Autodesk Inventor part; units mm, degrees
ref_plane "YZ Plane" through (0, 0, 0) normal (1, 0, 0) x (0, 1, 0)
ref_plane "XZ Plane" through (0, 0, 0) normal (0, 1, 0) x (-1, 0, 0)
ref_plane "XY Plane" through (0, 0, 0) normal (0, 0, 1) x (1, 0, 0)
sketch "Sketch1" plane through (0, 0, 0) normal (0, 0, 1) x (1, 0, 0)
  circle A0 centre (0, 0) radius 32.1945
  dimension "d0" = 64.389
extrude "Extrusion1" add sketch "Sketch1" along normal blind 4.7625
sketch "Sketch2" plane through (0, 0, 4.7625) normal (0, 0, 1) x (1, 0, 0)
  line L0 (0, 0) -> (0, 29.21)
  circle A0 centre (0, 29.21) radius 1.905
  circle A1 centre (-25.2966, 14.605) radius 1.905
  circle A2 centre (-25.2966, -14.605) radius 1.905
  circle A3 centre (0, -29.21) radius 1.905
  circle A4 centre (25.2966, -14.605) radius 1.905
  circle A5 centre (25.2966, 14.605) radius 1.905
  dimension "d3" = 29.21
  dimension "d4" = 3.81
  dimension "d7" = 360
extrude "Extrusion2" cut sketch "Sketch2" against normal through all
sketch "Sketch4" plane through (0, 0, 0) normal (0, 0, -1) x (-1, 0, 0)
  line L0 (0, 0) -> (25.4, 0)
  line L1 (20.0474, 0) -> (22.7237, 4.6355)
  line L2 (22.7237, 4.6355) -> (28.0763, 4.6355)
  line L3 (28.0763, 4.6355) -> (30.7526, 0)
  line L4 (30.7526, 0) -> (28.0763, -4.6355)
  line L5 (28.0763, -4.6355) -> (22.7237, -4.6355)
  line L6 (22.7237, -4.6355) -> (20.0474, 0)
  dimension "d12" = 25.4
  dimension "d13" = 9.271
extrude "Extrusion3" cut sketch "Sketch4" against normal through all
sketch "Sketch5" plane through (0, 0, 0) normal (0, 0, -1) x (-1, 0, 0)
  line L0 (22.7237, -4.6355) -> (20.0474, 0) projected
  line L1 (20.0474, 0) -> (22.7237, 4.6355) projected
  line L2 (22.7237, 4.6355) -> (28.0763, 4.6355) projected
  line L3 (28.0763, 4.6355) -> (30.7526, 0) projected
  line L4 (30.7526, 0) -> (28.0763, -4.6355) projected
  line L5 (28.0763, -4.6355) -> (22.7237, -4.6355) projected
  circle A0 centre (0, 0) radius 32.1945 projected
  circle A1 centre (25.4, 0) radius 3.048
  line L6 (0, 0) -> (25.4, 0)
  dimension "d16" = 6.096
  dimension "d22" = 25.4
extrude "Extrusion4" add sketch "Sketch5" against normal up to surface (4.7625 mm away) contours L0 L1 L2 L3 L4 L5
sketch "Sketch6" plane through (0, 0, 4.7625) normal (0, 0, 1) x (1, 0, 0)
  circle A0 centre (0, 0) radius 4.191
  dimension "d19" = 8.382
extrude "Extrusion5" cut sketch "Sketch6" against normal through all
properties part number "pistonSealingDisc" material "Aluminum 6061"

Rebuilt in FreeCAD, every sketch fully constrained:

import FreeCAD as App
import Part
import Sketcher
from FreeCAD import Vector
Q = App.Units.Quantity

doc = App.newDocument("Part")
body = doc.addObject("PartDesign::Body", "Body")

sketch1 = body.newObject("Sketcher::SketchObject", "Sketch")
sketch1.AttachmentSupport = (doc.getObject("XY_Plane"), [""])
sketch1.MapMode = "FlatFace"
sketch1.addGeometry(Part.Circle(Vector(0, 0, 0), Vector(0, 0, 1), 32), False)
sketch1.addConstraint([
    Sketcher.Constraint("Coincident", 0, 3, -1, 1),
    Sketcher.Constraint("Diameter", 0, Q("2.535 in")),
])
pad1 = body.newObject("PartDesign::Pad", "Pad")
pad1.Profile = sketch1
pad1.Length = Q("0.1875 in")

sketch2 = body.newObject("Sketcher::SketchObject", "Sketch001")
sketch2.AttachmentSupport = (doc.getObject("XY_Plane"), [""])
sketch2.MapMode = "FlatFace"
sketch2.AttachmentOffset = App.Placement(Vector(0, 0, 0.1875 * 25.4), App.Rotation())
sketch2.addGeometry([
    Part.Circle(Vector(0, 29.2, 0), Vector(0, 0, 1), 1.9),
    Part.Circle(Vector(-25.3, 14.6, 0), Vector(0, 0, 1), 1.9),
    Part.Circle(Vector(-25.3, -14.6, 0), Vector(0, 0, 1), 1.9),
    Part.Circle(Vector(0, -29.2, 0), Vector(0, 0, 1), 1.9),
    Part.Circle(Vector(25.3, -14.6, 0), Vector(0, 0, 1), 1.9),
    Part.Circle(Vector(25.3, 14.6, 0), Vector(0, 0, 1), 1.9),
], False)
sketch2.addConstraint([
    Sketcher.Constraint("Equal", 0, 1),
    Sketcher.Constraint("Equal", 1, 2),
    Sketcher.Constraint("Equal", 2, 3),
    Sketcher.Constraint("Equal", 3, 4),
    Sketcher.Constraint("Equal", 4, 5),
    Sketcher.Constraint("Symmetric", 0, 3, 3, 3, -1, 1),
    Sketcher.Constraint("Symmetric", 1, 3, 4, 3, -1, 1),
    Sketcher.Constraint("Symmetric", 2, 3, 5, 3, -1, 1),
    Sketcher.Constraint("Symmetric", 2, 3, 4, 3, -2),
    Sketcher.Constraint("PointOnObject", 0, 3, -2),
    Sketcher.Constraint("Diameter", 0, Q("0.15 in")),
    Sketcher.Constraint("DistanceY", -1, 1, 0, 3, Q("1.15 in")),
    Sketcher.Constraint("DistanceY", 2, 3, 1, 3, Q("1.15 in")),
    Sketcher.Constraint("DistanceX", 1, 3, -1, 1, 25.2966),
])
pocket1 = body.newObject("PartDesign::Pocket", "Pocket")
pocket1.Profile = sketch2
pocket1.Type = "ThroughAll"

sketch3 = body.newObject("Sketcher::SketchObject", "Sketch002")
sketch3.AttachmentSupport = (doc.getObject("XY_Plane"), [""])
sketch3.MapMode = "FlatFace"
sketch3.addGeometry([
    Part.LineSegment(Vector(-23, 5, 0), Vector(-20, 0, 0)),
    Part.LineSegment(Vector(-20, 0, 0), Vector(-23, -5, 0)),
    Part.LineSegment(Vector(-23, -5, 0), Vector(-28, -5, 0)),
    Part.LineSegment(Vector(-28, -5, 0), Vector(-31, 0, 0)),
    Part.LineSegment(Vector(-31, 0, 0), Vector(-28, 5, 0)),
    Part.LineSegment(Vector(-28, 5, 0), Vector(-23, 5, 0)),
], False)
sketch3.addConstraint([
    Sketcher.Constraint("Coincident", 0, 2, 1, 1),
    Sketcher.Constraint("Coincident", 1, 2, 2, 1),
    Sketcher.Constraint("Coincident", 2, 2, 3, 1),
    Sketcher.Constraint("Coincident", 3, 2, 4, 1),
    Sketcher.Constraint("Coincident", 4, 2, 5, 1),
    Sketcher.Constraint("Coincident", 5, 2, 0, 1),
    Sketcher.Constraint("Horizontal", 2),
    Sketcher.Constraint("Horizontal", 5),
    Sketcher.Constraint("Symmetric", 2, 2, 4, 2, -1),
    Sketcher.Constraint("PointOnObject", 0, 2, -1),
    Sketcher.Constraint("PointOnObject", 3, 2, -1),
    Sketcher.Constraint("Parallel", 0, 3),
    Sketcher.Constraint("Parallel", 1, 4),
    Sketcher.Constraint("Angle", 0, Q("-60 deg")),
    Sketcher.Constraint("DistanceY", 2, 2, 4, 2, Q("0.365 in")),
    Sketcher.Constraint("DistanceX", 2, 2, 2, 1, 5.3526),
    Sketcher.Constraint("DistanceX", 0, 2, -1, 1, 20.0474),
])
pocket2 = body.newObject("PartDesign::Pocket", "Pocket001")
pocket2.Profile = sketch3
pocket2.Type = "ThroughAll"
pocket2.Reversed = True

sketch4 = body.newObject("Sketcher::SketchObject", "Sketch003")
sketch4.AttachmentSupport = (doc.getObject("XY_Plane"), [""])
sketch4.MapMode = "FlatFace"
sketch4.addGeometry([
    Part.LineSegment(Vector(-20, 0, 0), Vector(-22.7, -4.6, 0)),
    Part.LineSegment(Vector(-22.7, -4.6, 0), Vector(-28.1, -4.6, 0)),
    Part.LineSegment(Vector(-28.1, -4.6, 0), Vector(-30.8, 0, 0)),
    Part.LineSegment(Vector(-30.8, 0, 0), Vector(-28.1, 4.6, 0)),
    Part.LineSegment(Vector(-28.1, 4.6, 0), Vector(-22.7, 4.6, 0)),
    Part.LineSegment(Vector(-22.7, 4.6, 0), Vector(-20, 0, 0)),
    Part.Circle(Vector(-25.4, 0, 0), Vector(0, 0, 1), 3),
], False)
sketch4.addConstraint([
    Sketcher.Constraint("Coincident", 0, 2, 1, 1),
    Sketcher.Constraint("Coincident", 1, 2, 2, 1),
    Sketcher.Constraint("Coincident", 2, 2, 3, 1),
    Sketcher.Constraint("Coincident", 3, 2, 4, 1),
    Sketcher.Constraint("Coincident", 4, 2, 5, 1),
    Sketcher.Constraint("Coincident", 5, 2, 0, 1),
    Sketcher.Constraint("Horizontal", 1),
    Sketcher.Constraint("Horizontal", 4),
    Sketcher.Constraint("Symmetric", 1, 2, 3, 2, -1),
    Sketcher.Constraint("PointOnObject", 6, 3, -1),
    Sketcher.Constraint("PointOnObject", 2, 2, -1),
    Sketcher.Constraint("PointOnObject", 5, 2, -1),
    Sketcher.Constraint("Parallel", 0, 3),
    Sketcher.Constraint("Parallel", 2, 5),
    Sketcher.Constraint("Diameter", 6, Q("0.24 in")),
    Sketcher.Constraint("DistanceX", 6, 3, -1, 1, Q("1 in")),
    Sketcher.Constraint("Angle", 0, Q("-120 deg")),
    Sketcher.Constraint("DistanceY", 1, 2, 3, 2, Q("0.365 in")),
    Sketcher.Constraint("DistanceX", 1, 2, 1, 1, 5.3526),
    Sketcher.Constraint("DistanceX", 0, 2, -1, 1, 22.7237),
])
pad2 = body.newObject("PartDesign::Pad", "Pad001")
pad2.Profile = sketch4
pad2.Length = Q("0.1875 in")

sketch5 = body.newObject("Sketcher::SketchObject", "Sketch004")
sketch5.AttachmentSupport = (doc.getObject("XY_Plane"), [""])
sketch5.MapMode = "FlatFace"
sketch5.AttachmentOffset = App.Placement(Vector(0, 0, 0.1875 * 25.4), App.Rotation())
sketch5.addGeometry(Part.Circle(Vector(0, 0, 0), Vector(0, 0, 1), 4.2), False)
sketch5.addConstraint([
    Sketcher.Constraint("Coincident", 0, 3, -1, 1),
    Sketcher.Constraint("Diameter", 0, Q("0.33 in")),
])
pocket3 = body.newObject("PartDesign::Pocket", "Pocket002")
pocket3.Profile = sketch5
pocket3.Type = "ThroughAll"

doc.recompute()
